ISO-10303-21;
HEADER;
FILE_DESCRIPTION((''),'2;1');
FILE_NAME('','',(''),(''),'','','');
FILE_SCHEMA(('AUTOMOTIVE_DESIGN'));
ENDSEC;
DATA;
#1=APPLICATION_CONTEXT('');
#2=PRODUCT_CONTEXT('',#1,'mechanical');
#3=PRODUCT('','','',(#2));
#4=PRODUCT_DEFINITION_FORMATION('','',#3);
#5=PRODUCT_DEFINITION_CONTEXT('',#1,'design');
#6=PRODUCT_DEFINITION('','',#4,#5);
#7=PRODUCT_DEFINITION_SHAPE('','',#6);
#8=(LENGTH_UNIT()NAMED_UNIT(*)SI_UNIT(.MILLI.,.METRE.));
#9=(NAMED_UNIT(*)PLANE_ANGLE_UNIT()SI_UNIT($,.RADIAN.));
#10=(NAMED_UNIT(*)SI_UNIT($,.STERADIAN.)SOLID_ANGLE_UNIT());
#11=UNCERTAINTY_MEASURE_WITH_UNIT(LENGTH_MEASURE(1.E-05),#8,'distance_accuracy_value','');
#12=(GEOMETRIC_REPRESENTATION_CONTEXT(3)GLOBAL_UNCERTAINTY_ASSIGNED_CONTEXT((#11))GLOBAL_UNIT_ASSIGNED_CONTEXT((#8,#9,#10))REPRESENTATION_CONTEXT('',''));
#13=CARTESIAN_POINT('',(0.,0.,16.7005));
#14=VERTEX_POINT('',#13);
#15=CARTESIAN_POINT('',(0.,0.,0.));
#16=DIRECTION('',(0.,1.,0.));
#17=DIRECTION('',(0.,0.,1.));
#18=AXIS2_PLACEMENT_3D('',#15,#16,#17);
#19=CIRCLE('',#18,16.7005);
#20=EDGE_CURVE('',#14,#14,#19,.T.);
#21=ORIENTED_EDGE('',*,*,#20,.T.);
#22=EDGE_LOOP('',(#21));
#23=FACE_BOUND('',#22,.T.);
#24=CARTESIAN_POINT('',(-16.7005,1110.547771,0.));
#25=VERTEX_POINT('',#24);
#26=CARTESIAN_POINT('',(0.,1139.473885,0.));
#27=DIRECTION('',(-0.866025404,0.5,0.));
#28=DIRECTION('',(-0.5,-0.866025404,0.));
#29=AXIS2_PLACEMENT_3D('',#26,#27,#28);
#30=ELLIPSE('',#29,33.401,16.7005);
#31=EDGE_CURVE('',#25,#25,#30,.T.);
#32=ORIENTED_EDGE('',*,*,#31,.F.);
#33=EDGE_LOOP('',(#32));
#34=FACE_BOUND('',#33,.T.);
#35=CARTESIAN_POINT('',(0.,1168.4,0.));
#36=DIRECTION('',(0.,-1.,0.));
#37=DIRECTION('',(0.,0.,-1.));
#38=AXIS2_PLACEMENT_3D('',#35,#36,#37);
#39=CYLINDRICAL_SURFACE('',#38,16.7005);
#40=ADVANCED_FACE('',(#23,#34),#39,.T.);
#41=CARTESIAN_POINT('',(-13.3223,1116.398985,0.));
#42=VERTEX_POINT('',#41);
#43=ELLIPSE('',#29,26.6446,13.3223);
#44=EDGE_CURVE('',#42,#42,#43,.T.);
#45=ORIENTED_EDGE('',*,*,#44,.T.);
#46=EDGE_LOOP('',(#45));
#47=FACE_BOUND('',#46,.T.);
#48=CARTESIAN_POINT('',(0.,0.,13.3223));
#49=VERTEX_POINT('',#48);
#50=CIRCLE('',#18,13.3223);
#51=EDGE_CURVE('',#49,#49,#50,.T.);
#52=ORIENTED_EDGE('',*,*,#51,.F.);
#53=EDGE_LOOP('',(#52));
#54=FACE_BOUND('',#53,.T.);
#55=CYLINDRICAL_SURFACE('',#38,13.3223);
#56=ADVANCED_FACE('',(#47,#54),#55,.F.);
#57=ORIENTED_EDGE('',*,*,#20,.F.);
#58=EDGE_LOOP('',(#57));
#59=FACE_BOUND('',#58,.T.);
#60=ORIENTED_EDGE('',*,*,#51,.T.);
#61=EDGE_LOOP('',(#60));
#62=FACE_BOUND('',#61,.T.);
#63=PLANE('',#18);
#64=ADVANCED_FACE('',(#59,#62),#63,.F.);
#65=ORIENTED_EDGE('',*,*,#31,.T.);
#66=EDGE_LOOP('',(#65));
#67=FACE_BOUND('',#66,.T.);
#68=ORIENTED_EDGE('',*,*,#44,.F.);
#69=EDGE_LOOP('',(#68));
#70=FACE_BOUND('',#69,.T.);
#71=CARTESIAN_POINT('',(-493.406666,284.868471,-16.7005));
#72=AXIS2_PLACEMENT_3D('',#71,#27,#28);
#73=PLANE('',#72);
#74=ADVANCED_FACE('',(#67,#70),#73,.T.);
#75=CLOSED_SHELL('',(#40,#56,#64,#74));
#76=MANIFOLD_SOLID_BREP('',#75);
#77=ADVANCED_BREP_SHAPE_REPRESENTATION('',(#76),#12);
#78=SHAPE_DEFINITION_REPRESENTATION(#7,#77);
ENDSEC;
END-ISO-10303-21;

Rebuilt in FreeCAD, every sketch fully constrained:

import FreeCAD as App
import Part
import Sketcher
Q = App.Units.Quantity


def add_polygon(sketch, points):
    """Adds a closed chain of lines whose ends are joined by coincident constraints."""
    first, n = sketch.GeometryCount, len(points)
    for a, b in zip(points, points[1:] + points[:1]):
        sketch.addGeometry(Part.LineSegment(App.Vector(*a, 0), App.Vector(*b, 0)), False)
    for i in range(n):
        sketch.addConstraint(Sketcher.Constraint("Coincident", first + i, 2, first + (i + 1) % n, 1))

doc = App.newDocument("Part")
params = doc.addObject("Spreadsheet::Sheet", "Params")
for row, (alias, value) in enumerate([
    ("sketch1_diameter", "1.315 in"),
    ("sketch1_diameter2", "1.049 in"),
    ("pad1_length", "46 in"),
    ("sketch2_length", "2.63 in"),
], start=1):
    params.set(f"A{row}", alias)
    params.set(f"B{row}", "=" + value)
    params.setAlias(f"B{row}", alias)

body = doc.addObject("PartDesign::Body", "Body")

# Sketch on XZ plane
sketch1 = doc.addObject("Sketcher::SketchObject", "Sketch")
body.addObject(sketch1)
sketch1.AttachmentSupport = (doc.XZ_Plane, [""])
sketch1.MapMode = "FlatFace"
sketch1.addGeometry([
    Part.Circle(App.Vector(0, 0, 0), App.Vector(0, 0, 1), 16.7005),
    Part.Circle(App.Vector(0, 0, 0), App.Vector(0, 0, 1), 13.3223),
], False)
sketch1.addConstraint([
    Sketcher.Constraint("Coincident", 0, 3, -1, 1),
    Sketcher.Constraint("Coincident", 1, 3, -1, 1),
    Sketcher.Constraint("Diameter", 0, Q("1.315 in")),
    Sketcher.Constraint("Diameter", 1, Q("1.049 in")),
])
sketch1.setExpression("Constraints[2]", "Params.sketch1_diameter")
sketch1.setExpression("Constraints[3]", "Params.sketch1_diameter2")
pad1 = doc.addObject("PartDesign::Pad", "Pad")
body.addObject(pad1)
pad1.Profile = sketch1
pad1.setExpression("Length", "Params.pad1_length")
pad1.Reversed = True

# Sketch on XY plane
sketch2 = doc.addObject("Sketcher::SketchObject", "Sketch001")
body.addObject(sketch2)
sketch2.AttachmentSupport = (doc.XY_Plane, [""])
sketch2.MapMode = "FlatFace"
add_polygon(sketch2, [(16.7005, 1168.4), (-16.7005, 1168.4), (-16.7005, 1110.547771)])  # lines 0-2
sketch2.addConstraint([
    Sketcher.Constraint("Horizontal", 0),
    Sketcher.Constraint("Vertical", 1),
    Sketcher.Constraint("DistanceY", -1, 1, 0, 2, Q("46 in")),
    Sketcher.Constraint("Angle", 2, Q("60 deg")),
    Sketcher.Constraint("Distance", 2, Q("2.63 in")),
    Sketcher.Constraint("DistanceX", 0, 2, -1, 1, Q("0.6575 in")),
])
sketch2.setExpression("Constraints[7]", "Params.sketch2_length")
pocket1 = doc.addObject("PartDesign::Pocket", "Pocket")
body.addObject(pocket1)
pocket1.Profile = sketch2
pocket1.Type = "ThroughAll"
pocket1.Midplane = True

doc.recompute()
